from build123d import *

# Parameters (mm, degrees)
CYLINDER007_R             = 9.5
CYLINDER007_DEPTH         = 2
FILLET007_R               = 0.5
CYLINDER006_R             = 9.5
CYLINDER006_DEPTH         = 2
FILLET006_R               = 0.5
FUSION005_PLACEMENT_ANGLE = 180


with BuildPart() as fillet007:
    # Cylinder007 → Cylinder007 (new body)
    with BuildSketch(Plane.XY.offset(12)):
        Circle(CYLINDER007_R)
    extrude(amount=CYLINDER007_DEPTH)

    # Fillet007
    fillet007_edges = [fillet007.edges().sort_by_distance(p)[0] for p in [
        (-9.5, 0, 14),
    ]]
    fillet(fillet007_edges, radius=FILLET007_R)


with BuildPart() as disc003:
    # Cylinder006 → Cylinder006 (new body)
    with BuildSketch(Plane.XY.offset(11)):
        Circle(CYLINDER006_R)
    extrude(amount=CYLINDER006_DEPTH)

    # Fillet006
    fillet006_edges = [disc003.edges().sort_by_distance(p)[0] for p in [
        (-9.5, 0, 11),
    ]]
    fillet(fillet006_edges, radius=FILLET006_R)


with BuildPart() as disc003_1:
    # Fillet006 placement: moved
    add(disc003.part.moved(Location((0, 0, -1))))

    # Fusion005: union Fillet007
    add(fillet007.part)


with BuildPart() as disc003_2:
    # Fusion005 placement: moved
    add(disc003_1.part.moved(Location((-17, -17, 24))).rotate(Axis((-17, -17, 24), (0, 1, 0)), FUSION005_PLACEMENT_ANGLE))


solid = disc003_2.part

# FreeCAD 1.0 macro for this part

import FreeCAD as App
import Part
import Sketcher
from FreeCAD import Vector


def edges_at(feature, points):
    """Names of the edges that pass closest to the given points."""
    edges = feature.Shape.Edges
    near = lambda p: min(range(len(edges)), key=lambda i: edges[i].distToShape(Part.Vertex(*p))[0])
    return sorted({f"Edge{near(p) + 1}" for p in points})

doc = App.newDocument("Part")
params = doc.addObject("Spreadsheet::Sheet", "Params")
for row, (alias, value) in enumerate([
    ("sketch1_diameter", "19 mm"),
    ("pad1_length", "2 mm"),
    ("fillet_radius", "0.5 mm"),
    ("sketch2_diameter", "19 mm"),
    ("pad2_length", "2 mm"),
    ("fillet2_radius", "0.5 mm"),
], start=1):
    params.set(f"A{row}", alias)
    params.set(f"B{row}", "=" + value)
    params.setAlias(f"B{row}", alias)

body = doc.addObject("PartDesign::Body", "Body")

sketch1 = doc.addObject("Sketcher::SketchObject", "Sketch")
body.addObject(sketch1)
sketch1.AttachmentSupport = (doc.XY_Plane, [""])
sketch1.MapMode = "FlatFace"
sketch1.AttachmentOffset = App.Placement(Vector(0, 0, 12), App.Rotation())
sketch1.addGeometry(Part.Circle(Vector(0, 0, 0), Vector(0, 0, 1), 10), False)
sketch1.addConstraint(Sketcher.Constraint("Coincident", 0, 3, -1, 1))
sketch1.addConstraint(Sketcher.Constraint("Diameter", 0, 19.0))
sketch1.setExpression("Constraints[1]", "Params.sketch1_diameter")
pad1 = doc.addObject("PartDesign::Pad", "Pad")
body.addObject(pad1)
pad1.Profile = sketch1
pad1.setExpression("Length", "Params.pad1_length")
doc.recompute()

fillet = doc.addObject("PartDesign::Fillet", "Fillet")
body.addObject(fillet)
fillet.Base = (pad1, edges_at(pad1, [(-9.5, 0, 14)]))
fillet.setExpression("Radius", "Params.fillet_radius")
body2 = doc.addObject("PartDesign::Body", "Body001")

sketch2 = doc.addObject("Sketcher::SketchObject", "Sketch001")
body2.addObject(sketch2)
sketch2.AttachmentSupport = (doc.getObject("XY_Plane001"), [""])
sketch2.MapMode = "FlatFace"
sketch2.AttachmentOffset = App.Placement(Vector(0, 0, 11), App.Rotation())
sketch2.addGeometry(Part.Circle(Vector(0, 0, 0), Vector(0, 0, 1), 10), False)
sketch2.addConstraint(Sketcher.Constraint("Coincident", 0, 3, -1, 1))
sketch2.addConstraint(Sketcher.Constraint("Diameter", 0, 19.0))
sketch2.setExpression("Constraints[1]", "Params.sketch2_diameter")
pad2 = doc.addObject("PartDesign::Pad", "Pad001")
body2.addObject(pad2)
pad2.Profile = sketch2
pad2.setExpression("Length", "Params.pad2_length")
doc.recompute()

fillet2 = doc.addObject("PartDesign::Fillet", "Fillet001")
body2.addObject(fillet2)
fillet2.Base = (pad2, edges_at(pad2, [(-9.5, 0, 11)]))
fillet2.setExpression("Radius", "Params.fillet2_radius")
body3 = doc.addObject("PartDesign::Body", "Body002")
doc.recompute()

body2.Placement = App.Placement(Vector(0, 0, -1), App.Rotation(Vector(0, 0, 1), 0))
boolean = doc.addObject("PartDesign::Boolean", "Boolean")
body3.addObject(boolean)
boolean.Type = "Fuse"
boolean.addObjects([body2])
doc.recompute()

boolean2 = doc.addObject("PartDesign::Boolean", "Boolean001")
body3.addObject(boolean2)
boolean2.Type = "Fuse"
boolean2.addObjects([body])
body4 = doc.addObject("PartDesign::Body", "Body003")
doc.recompute()

body3.Placement = App.Placement(Vector(-17, -17, 24), App.Rotation(Vector(0, 1, 0), 180))
boolean3 = doc.addObject("PartDesign::Boolean", "Boolean002")
body4.addObject(boolean3)
boolean3.Type = "Fuse"
boolean3.addObjects([body3])

doc.recompute()
